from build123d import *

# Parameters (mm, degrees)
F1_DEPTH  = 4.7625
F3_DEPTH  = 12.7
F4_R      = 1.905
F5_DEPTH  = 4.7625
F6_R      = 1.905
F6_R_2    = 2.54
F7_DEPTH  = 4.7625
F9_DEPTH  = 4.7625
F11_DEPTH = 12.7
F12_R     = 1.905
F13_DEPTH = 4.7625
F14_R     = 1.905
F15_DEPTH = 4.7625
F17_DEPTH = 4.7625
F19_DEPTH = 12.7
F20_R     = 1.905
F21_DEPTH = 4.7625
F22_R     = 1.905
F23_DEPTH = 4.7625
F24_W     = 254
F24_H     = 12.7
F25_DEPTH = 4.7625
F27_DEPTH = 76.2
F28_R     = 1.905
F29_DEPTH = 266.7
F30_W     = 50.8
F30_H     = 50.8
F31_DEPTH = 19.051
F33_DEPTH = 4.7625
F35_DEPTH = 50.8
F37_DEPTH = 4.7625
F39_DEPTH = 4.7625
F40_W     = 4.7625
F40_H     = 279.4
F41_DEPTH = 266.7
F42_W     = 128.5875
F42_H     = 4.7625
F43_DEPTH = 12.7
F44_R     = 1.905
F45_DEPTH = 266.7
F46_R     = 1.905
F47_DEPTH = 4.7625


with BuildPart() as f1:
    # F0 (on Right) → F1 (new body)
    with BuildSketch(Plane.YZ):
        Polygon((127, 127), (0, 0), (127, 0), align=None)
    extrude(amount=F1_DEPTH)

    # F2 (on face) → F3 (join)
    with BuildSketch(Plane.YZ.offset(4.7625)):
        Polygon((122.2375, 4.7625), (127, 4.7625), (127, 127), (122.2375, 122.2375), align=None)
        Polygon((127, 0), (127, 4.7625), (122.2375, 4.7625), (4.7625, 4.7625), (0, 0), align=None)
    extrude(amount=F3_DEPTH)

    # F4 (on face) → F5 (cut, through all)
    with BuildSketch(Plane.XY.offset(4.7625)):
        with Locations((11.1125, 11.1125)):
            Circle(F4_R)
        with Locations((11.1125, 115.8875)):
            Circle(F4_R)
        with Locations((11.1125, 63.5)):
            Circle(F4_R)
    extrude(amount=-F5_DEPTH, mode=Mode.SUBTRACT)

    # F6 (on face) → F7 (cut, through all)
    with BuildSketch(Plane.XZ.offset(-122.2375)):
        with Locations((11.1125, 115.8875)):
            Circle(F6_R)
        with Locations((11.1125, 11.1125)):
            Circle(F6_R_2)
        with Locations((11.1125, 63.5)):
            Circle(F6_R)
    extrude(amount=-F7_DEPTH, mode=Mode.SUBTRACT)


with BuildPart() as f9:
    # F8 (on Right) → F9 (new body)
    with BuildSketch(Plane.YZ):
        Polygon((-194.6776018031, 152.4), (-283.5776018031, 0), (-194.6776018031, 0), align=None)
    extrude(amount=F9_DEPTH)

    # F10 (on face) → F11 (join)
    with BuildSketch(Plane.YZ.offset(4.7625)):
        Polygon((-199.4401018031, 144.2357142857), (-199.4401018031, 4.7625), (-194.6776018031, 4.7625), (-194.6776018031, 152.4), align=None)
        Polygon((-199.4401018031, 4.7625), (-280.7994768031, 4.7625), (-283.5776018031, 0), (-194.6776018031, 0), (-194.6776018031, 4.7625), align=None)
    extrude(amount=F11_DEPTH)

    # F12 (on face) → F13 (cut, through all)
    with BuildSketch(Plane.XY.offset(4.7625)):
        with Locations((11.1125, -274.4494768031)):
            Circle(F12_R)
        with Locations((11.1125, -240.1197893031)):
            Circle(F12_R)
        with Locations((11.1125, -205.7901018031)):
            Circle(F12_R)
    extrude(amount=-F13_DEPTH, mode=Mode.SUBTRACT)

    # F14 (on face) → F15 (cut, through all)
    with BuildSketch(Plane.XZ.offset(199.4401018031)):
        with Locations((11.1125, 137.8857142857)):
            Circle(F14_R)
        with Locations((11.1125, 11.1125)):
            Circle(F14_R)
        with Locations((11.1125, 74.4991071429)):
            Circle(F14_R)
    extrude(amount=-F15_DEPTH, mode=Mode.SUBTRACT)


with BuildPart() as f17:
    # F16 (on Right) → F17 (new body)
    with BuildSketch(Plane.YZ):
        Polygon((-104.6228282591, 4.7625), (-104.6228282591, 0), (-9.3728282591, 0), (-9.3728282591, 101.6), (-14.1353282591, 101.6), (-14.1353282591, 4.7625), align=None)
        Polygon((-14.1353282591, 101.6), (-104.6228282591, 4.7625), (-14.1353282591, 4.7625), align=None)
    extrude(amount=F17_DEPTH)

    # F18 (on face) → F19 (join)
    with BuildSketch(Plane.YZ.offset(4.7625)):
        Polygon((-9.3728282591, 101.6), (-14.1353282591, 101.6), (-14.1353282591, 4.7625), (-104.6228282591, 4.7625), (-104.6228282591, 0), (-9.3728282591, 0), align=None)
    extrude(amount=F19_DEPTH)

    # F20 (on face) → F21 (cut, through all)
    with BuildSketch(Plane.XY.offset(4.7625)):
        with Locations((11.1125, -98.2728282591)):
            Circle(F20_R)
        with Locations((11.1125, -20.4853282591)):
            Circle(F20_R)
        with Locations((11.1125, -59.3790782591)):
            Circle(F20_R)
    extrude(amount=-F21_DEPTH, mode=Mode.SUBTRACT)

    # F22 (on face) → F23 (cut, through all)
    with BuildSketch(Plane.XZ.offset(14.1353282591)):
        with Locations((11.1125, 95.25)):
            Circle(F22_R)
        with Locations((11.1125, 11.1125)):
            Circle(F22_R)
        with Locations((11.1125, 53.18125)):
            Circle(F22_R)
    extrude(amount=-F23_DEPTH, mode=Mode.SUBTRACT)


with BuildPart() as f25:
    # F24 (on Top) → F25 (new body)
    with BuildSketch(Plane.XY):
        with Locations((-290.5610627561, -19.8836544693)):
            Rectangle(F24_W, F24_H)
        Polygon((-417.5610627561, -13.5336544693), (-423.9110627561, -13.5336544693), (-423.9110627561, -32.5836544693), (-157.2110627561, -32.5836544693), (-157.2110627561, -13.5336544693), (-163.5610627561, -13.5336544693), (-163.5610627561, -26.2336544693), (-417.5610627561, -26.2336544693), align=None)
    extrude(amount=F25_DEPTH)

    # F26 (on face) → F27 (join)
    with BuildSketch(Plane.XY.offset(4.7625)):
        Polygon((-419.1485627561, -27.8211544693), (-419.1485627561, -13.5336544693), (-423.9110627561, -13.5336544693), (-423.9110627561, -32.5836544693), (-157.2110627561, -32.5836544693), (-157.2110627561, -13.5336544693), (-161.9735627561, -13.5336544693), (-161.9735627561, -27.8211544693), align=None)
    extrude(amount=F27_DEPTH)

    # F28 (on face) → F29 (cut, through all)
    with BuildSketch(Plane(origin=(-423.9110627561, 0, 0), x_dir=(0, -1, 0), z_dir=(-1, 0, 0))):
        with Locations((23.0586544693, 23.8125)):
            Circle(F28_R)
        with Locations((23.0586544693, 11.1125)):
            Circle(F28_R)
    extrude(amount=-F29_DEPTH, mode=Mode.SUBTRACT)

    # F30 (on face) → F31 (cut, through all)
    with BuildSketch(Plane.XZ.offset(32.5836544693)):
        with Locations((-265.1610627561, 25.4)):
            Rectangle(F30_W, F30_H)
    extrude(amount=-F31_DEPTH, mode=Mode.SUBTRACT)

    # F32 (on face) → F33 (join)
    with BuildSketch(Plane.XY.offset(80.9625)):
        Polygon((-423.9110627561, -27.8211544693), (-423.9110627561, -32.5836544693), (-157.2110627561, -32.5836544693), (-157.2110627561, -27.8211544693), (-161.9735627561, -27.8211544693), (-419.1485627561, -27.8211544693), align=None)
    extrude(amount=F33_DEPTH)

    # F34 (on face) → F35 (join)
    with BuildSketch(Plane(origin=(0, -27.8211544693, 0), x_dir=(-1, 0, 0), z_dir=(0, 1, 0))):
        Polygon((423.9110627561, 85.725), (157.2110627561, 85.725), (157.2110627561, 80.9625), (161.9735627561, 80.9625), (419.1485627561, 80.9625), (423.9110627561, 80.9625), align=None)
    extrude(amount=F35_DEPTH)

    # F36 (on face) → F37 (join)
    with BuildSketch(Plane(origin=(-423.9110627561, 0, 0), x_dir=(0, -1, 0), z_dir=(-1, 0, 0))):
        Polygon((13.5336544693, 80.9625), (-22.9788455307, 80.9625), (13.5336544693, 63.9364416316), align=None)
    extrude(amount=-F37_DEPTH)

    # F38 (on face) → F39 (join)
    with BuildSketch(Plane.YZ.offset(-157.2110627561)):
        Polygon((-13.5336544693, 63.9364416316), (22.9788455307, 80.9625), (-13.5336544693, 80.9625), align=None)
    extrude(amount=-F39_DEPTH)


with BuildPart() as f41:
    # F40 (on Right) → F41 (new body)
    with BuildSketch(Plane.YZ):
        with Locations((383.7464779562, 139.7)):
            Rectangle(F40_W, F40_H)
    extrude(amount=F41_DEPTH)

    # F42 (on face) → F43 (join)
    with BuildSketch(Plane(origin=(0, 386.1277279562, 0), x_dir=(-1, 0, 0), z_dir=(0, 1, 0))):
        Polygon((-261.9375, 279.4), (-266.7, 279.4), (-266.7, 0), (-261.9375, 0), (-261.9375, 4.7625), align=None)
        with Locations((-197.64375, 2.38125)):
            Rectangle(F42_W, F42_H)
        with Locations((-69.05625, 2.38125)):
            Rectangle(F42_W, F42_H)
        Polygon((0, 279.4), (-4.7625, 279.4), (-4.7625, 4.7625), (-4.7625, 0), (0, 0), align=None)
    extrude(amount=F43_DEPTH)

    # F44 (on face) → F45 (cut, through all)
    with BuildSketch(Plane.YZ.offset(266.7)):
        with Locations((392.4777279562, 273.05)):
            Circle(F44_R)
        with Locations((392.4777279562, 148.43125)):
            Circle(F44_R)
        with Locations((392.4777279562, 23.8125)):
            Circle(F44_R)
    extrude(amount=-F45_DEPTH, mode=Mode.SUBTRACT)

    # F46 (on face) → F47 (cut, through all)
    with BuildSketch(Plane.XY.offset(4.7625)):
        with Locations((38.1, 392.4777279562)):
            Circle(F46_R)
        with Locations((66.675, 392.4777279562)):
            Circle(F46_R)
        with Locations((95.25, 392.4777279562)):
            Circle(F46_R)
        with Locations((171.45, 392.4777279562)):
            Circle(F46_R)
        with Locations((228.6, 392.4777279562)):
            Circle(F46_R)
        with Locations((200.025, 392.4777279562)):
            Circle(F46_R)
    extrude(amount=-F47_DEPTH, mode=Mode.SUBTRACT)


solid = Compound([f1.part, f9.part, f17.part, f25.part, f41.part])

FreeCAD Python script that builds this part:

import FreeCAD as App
import Part
import Sketcher
Q = App.Units.Quantity

doc = App.newDocument("Part")
body = doc.addObject("PartDesign::Body", "Body")

# Sketch on YZ plane
sketch1 = body.newObject("Sketcher::SketchObject", "Sketch")
sketch1.AttachmentSupport = (doc.getObject("YZ_Plane"), [""])
sketch1.MapMode = "FlatFace"
sketch1.addGeometry(Part.LineSegment(App.Vector(127, 127, 0), App.Vector(0, 0, 0)), False)
sketch1.addGeometry(Part.LineSegment(App.Vector(0, 0, 0), App.Vector(127, 0, 0)), False)
sketch1.addGeometry(Part.LineSegment(App.Vector(127, 0, 0), App.Vector(127, 127, 0)), False)
sketch1.addConstraint(Sketcher.Constraint("Coincident", 0, 2, 1, 1))
sketch1.addConstraint(Sketcher.Constraint("Coincident", 1, 2, 2, 1))
sketch1.addConstraint(Sketcher.Constraint("Coincident", 2, 2, 0, 1))
sketch1.addConstraint(Sketcher.Constraint("Horizontal", 1))
sketch1.addConstraint(Sketcher.Constraint("Vertical", 2))
sketch1.addConstraint(Sketcher.Constraint("Coincident", 0, 2, -1, 1))
sketch1.addConstraint(Sketcher.Constraint("Equal", 1, 2))
sketch1.addConstraint(Sketcher.Constraint("DistanceX", 1, 1, 1, 2, Q("5 in")))
pad1 = body.newObject("PartDesign::Pad", "Pad")
pad1.Profile = sketch1
pad1.Length = Q("0.1875 in")

# Sketch on YZ plane
sketch2 = body.newObject("Sketcher::SketchObject", "Sketch001")
sketch2.AttachmentSupport = (doc.getObject("YZ_Plane"), [""])
sketch2.MapMode = "FlatFace"
sketch2.AttachmentOffset = App.Placement(App.Vector(0, 0, 0.1875 * 25.4), App.Rotation())
sketch2.addGeometry(Part.LineSegment(App.Vector(127, 127, 0), App.Vector(122, 122, 0)), False)
sketch2.addGeometry(Part.LineSegment(App.Vector(122, 122, 0), App.Vector(122, 5, 0)), False)
sketch2.addGeometry(Part.LineSegment(App.Vector(122, 5, 0), App.Vector(5, 5, 0)), False)
sketch2.addGeometry(Part.LineSegment(App.Vector(5, 5, 0), App.Vector(0, 0, 0)), False)
sketch2.addGeometry(Part.LineSegment(App.Vector(0, 0, 0), App.Vector(127, 0, 0)), False)
sketch2.addGeometry(Part.LineSegment(App.Vector(127, 0, 0), App.Vector(127, 127, 0)), False)
sketch2.addConstraint(Sketcher.Constraint("Coincident", 0, 2, 1, 1))
sketch2.addConstraint(Sketcher.Constraint("Coincident", 1, 2, 2, 1))
sketch2.addConstraint(Sketcher.Constraint("Coincident", 2, 2, 3, 1))
sketch2.addConstraint(Sketcher.Constraint("Coincident", 3, 2, 4, 1))
sketch2.addConstraint(Sketcher.Constraint("Coincident", 4, 2, 5, 1))
sketch2.addConstraint(Sketcher.Constraint("Coincident", 5, 2, 0, 1))
sketch2.addConstraint(Sketcher.Constraint("Vertical", 1))
sketch2.addConstraint(Sketcher.Constraint("Horizontal", 2))
sketch2.addConstraint(Sketcher.Constraint("Horizontal", 4))
sketch2.addConstraint(Sketcher.Constraint("Vertical", 5))
sketch2.addConstraint(Sketcher.Constraint("Coincident", 3, 2, -1, 1))
sketch2.addConstraint(Sketcher.Constraint("Parallel", 0, 3))
sketch2.addConstraint(Sketcher.Constraint("Equal", 2, 1))
sketch2.addConstraint(Sketcher.Constraint("Equal", 4, 5))
sketch2.addConstraint(Sketcher.Constraint("Equal", 0, 3))
sketch2.addConstraint(Sketcher.Constraint("DistanceX", 4, 1, 4, 2, Q("5 in")))
sketch2.addConstraint(Sketcher.Constraint("DistanceX", 2, 2, 2, 1, Q("4.625 in")))
pad2 = body.newObject("PartDesign::Pad", "Pad001")
pad2.Profile = sketch2
pad2.Length = Q("0.5 in")

# Sketch on XY plane
sketch3 = body.newObject("Sketcher::SketchObject", "Sketch002")
sketch3.AttachmentSupport = (doc.getObject("XY_Plane"), [""])
sketch3.MapMode = "FlatFace"
sketch3.AttachmentOffset = App.Placement(App.Vector(0, 0, 0.1875 * 25.4), App.Rotation())
sketch3.addGeometry(Part.Circle(App.Vector(11.1, 11.1, 0), App.Vector(0, 0, 1), 1.9), False)
sketch3.addGeometry(Part.Circle(App.Vector(11.1, 115.9, 0), App.Vector(0, 0, 1), 1.9), False)
sketch3.addGeometry(Part.Circle(App.Vector(11.1, 63.5, 0), App.Vector(0, 0, 1), 1.9), False)
sketch3.addConstraint(Sketcher.Constraint("Equal", 0, 1))
sketch3.addConstraint(Sketcher.Constraint("Equal", 1, 2))
sketch3.addConstraint(Sketcher.Constraint("Vertical", 0, 3, 1, 3))
sketch3.addConstraint(Sketcher.Constraint("Vertical", 1, 3, 2, 3))
sketch3.addConstraint(Sketcher.Constraint("Diameter", 0, Q("0.15 in")))
sketch3.addConstraint(Sketcher.Constraint("DistanceY", -1, 1, 2, 3, Q("2.5 in")))
sketch3.addConstraint(Sketcher.Constraint("DistanceX", -1, 1, 0, 3, Q("0.4375 in")))
sketch3.addConstraint(Sketcher.Constraint("DistanceY", -1, 1, 0, 3, Q("0.4375 in")))
sketch3.addConstraint(Sketcher.Constraint("DistanceY", -1, 1, 1, 3, Q("4.5625 in")))
pocket1 = body.newObject("PartDesign::Pocket", "Pocket")
pocket1.Profile = sketch3
pocket1.Type = "ThroughAll"

# Sketch on XZ plane
sketch4 = body.newObject("Sketcher::SketchObject", "Sketch003")
sketch4.AttachmentSupport = (doc.getObject("XZ_Plane"), [""])
sketch4.MapMode = "FlatFace"
sketch4.AttachmentOffset = App.Placement(App.Vector(0, 0, -4.8125 * 25.4), App.Rotation())
sketch4.addGeometry(Part.Circle(App.Vector(11.1, 115.9, 0), App.Vector(0, 0, 1), 1.9), False)
sketch4.addGeometry(Part.Circle(App.Vector(11.1, 11.1, 0), App.Vector(0, 0, 1), 2.5), False)
sketch4.addGeometry(Part.Circle(App.Vector(11.1, 63.5, 0), App.Vector(0, 0, 1), 1.9), False)
sketch4.addConstraint(Sketcher.Constraint("Equal", 0, 2))
sketch4.addConstraint(Sketcher.Constraint("Vertical", 0, 3, 1, 3))
sketch4.addConstraint(Sketcher.Constraint("Vertical", 1, 3, 2, 3))
sketch4.addConstraint(Sketcher.Constraint("Diameter", 1, Q("0.2 in")))
sketch4.addConstraint(Sketcher.Constraint("Diameter", 0, Q("0.15 in")))
sketch4.addConstraint(Sketcher.Constraint("DistanceY", -1, 1, 2, 3, Q("2.5 in")))
sketch4.addConstraint(Sketcher.Constraint("DistanceX", -1, 1, 0, 3, Q("0.4375 in")))
sketch4.addConstraint(Sketcher.Constraint("DistanceY", -1, 1, 0, 3, Q("4.5625 in")))
sketch4.addConstraint(Sketcher.Constraint("DistanceY", -1, 1, 1, 3, Q("0.4375 in")))
pocket2 = body.newObject("PartDesign::Pocket", "Pocket001")
pocket2.Profile = sketch4
pocket2.Type = "ThroughAll"
body2 = doc.addObject("PartDesign::Body", "Body001")

# Sketch on YZ plane
sketch5 = body2.newObject("Sketcher::SketchObject", "Sketch004")
sketch5.AttachmentSupport = (doc.getObject("YZ_Plane001"), [""])
sketch5.MapMode = "FlatFace"
sketch5.addGeometry(Part.LineSegment(App.Vector(-195, 152, 0), App.Vector(-284, 0, 0)), False)
sketch5.addGeometry(Part.LineSegment(App.Vector(-284, 0, 0), App.Vector(-195, 0, 0)), False)
sketch5.addGeometry(Part.LineSegment(App.Vector(-195, 0, 0), App.Vector(-195, 152, 0)), False)
sketch5.addConstraint(Sketcher.Constraint("Coincident", 0, 2, 1, 1))
sketch5.addConstraint(Sketcher.Constraint("Coincident", 1, 2, 2, 1))
sketch5.addConstraint(Sketcher.Constraint("Coincident", 2, 2, 0, 1))
sketch5.addConstraint(Sketcher.Constraint("Horizontal", 1))
sketch5.addConstraint(Sketcher.Constraint("Vertical", 2))
sketch5.addConstraint(Sketcher.Constraint("PointOnObject", 0, 2, -1))
sketch5.addConstraint(Sketcher.Constraint("DistanceY", 2, 1, 2, 2, Q("6 in")))
sketch5.addConstraint(Sketcher.Constraint("DistanceX", 1, 1, 1, 2, Q("3.5 in")))
sketch5.addConstraint(Sketcher.Constraint("DistanceX", 0, 2, -1, 1, Q("283.577602 mm")))
pad3 = body2.newObject("PartDesign::Pad", "Pad002")
pad3.Profile = sketch5
pad3.Length = Q("0.1875 in")

# Sketch on YZ plane
sketch6 = body2.newObject("Sketcher::SketchObject", "Sketch005")
sketch6.AttachmentSupport = (doc.getObject("YZ_Plane001"), [""])
sketch6.MapMode = "FlatFace"
sketch6.AttachmentOffset = App.Placement(App.Vector(0, 0, 0.1875 * 25.4), App.Rotation())
sketch6.addGeometry(Part.LineSegment(App.Vector(-199, 144, 0), App.Vector(-199, 5, 0)), False)
sketch6.addGeometry(Part.LineSegment(App.Vector(-199, 5, 0), App.Vector(-281, 5, 0)), False)
sketch6.addGeometry(Part.LineSegment(App.Vector(-281, 5, 0), App.Vector(-284, 0, 0)), False)
sketch6.addGeometry(Part.LineSegment(App.Vector(-284, 0, 0), App.Vector(-195, 0, 0)), False)
sketch6.addGeometry(Part.LineSegment(App.Vector(-195, 0, 0), App.Vector(-195, 152, 0)), False)
sketch6.addGeometry(Part.LineSegment(App.Vector(-195, 152, 0), App.Vector(-199, 144, 0)), False)
sketch6.addConstraint(Sketcher.Constraint("Coincident", 0, 2, 1, 1))
sketch6.addConstraint(Sketcher.Constraint("Coincident", 1, 2, 2, 1))
sketch6.addConstraint(Sketcher.Constraint("Coincident", 2, 2, 3, 1))
sketch6.addConstraint(Sketcher.Constraint("Coincident", 3, 2, 4, 1))
sketch6.addConstraint(Sketcher.Constraint("Coincident", 4, 2, 5, 1))
sketch6.addConstraint(Sketcher.Constraint("Coincident", 5, 2, 0, 1))
sketch6.addConstraint(Sketcher.Constraint("Vertical", 0))
sketch6.addConstraint(Sketcher.Constraint("Horizontal", 1))
sketch6.addConstraint(Sketcher.Constraint("Horizontal", 3))
sketch6.addConstraint(Sketcher.Constraint("Vertical", 4))
sketch6.addConstraint(Sketcher.Constraint("PointOnObject", 2, 2, -1))
sketch6.addConstraint(Sketcher.Constraint("Parallel", 2, 5))
sketch6.addConstraint(Sketcher.Constraint("DistanceY", 4, 1, 4, 2, Q("6 in")))
sketch6.addConstraint(Sketcher.Constraint("DistanceX", 3, 1, 3, 2, Q("3.5 in")))
sketch6.addConstraint(Sketcher.Constraint("DistanceX", 1, 2, 1, 1, Q("3.203125 in")))
sketch6.addConstraint(Sketcher.Constraint("DistanceY", -1, 1, 0, 2, Q("0.1875 in")))
sketch6.addConstraint(Sketcher.Constraint("DistanceX", 2, 2, 1, 2, Q("0.109375 in")))
sketch6.addConstraint(Sketcher.Constraint("DistanceX", 0, 2, -1, 1, Q("199.440102 mm")))
pad4 = body2.newObject("PartDesign::Pad", "Pad003")
pad4.Profile = sketch6
pad4.Length = Q("0.5 in")

# Sketch on XY plane
sketch7 = body2.newObject("Sketcher::SketchObject", "Sketch006")
sketch7.AttachmentSupport = (doc.getObject("XY_Plane001"), [""])
sketch7.MapMode = "FlatFace"
sketch7.AttachmentOffset = App.Placement(App.Vector(0, 0, 0.1875 * 25.4), App.Rotation())
sketch7.addGeometry(Part.Circle(App.Vector(11.1, -274.4, 0), App.Vector(0, 0, 1), 1.9), False)
sketch7.addGeometry(Part.Circle(App.Vector(11.1, -240.1, 0), App.Vector(0, 0, 1), 1.9), False)
sketch7.addGeometry(Part.Circle(App.Vector(11.1, -205.8, 0), App.Vector(0, 0, 1), 1.9), False)
sketch7.addConstraint(Sketcher.Constraint("Equal", 0, 1))
sketch7.addConstraint(Sketcher.Constraint("Equal", 1, 2))
sketch7.addConstraint(Sketcher.Constraint("Vertical", 0, 3, 1, 3))
sketch7.addConstraint(Sketcher.Constraint("Vertical", 1, 3, 2, 3))
sketch7.addConstraint(Sketcher.Constraint("Diameter", 0, Q("0.15 in")))
sketch7.addConstraint(Sketcher.Constraint("DistanceX", -1, 1, 0, 3, Q("0.4375 in")))
sketch7.addConstraint(Sketcher.Constraint("DistanceY", 0, 3, 2, 3, Q("2.703125 in")))
sketch7.addConstraint(Sketcher.Constraint("DistanceY", 2, 3, -1, 1, Q("205.790102 mm")))
sketch7.addConstraint(Sketcher.Constraint("DistanceY", 1, 3, -1, 1, Q("240.119789 mm")))
pocket3 = body2.newObject("PartDesign::Pocket", "Pocket002")
pocket3.Profile = sketch7
pocket3.Type = "ThroughAll"

# Sketch on XZ plane
sketch8 = body2.newObject("Sketcher::SketchObject", "Sketch007")
sketch8.AttachmentSupport = (doc.getObject("XZ_Plane001"), [""])
sketch8.MapMode = "FlatFace"
sketch8.AttachmentOffset = App.Placement(App.Vector(0, 0, 199.440102), App.Rotation())
sketch8.addGeometry(Part.Circle(App.Vector(11.1, 137.9, 0), App.Vector(0, 0, 1), 1.9), False)
sketch8.addGeometry(Part.Circle(App.Vector(11.1, 11.1, 0), App.Vector(0, 0, 1), 1.9), False)
sketch8.addGeometry(Part.Circle(App.Vector(11.1, 74.5, 0), App.Vector(0, 0, 1), 1.9), False)
sketch8.addConstraint(Sketcher.Constraint("Equal", 0, 1))
sketch8.addConstraint(Sketcher.Constraint("Equal", 1, 2))
sketch8.addConstraint(Sketcher.Constraint("Vertical", 0, 3, 1, 3))
sketch8.addConstraint(Sketcher.Constraint("Vertical", 1, 3, 2, 3))
sketch8.addConstraint(Sketcher.Constraint("Diameter", 0, Q("0.15 in")))
sketch8.addConstraint(Sketcher.Constraint("DistanceX", -1, 1, 0, 3, Q("0.4375 in")))
sketch8.addConstraint(Sketcher.Constraint("DistanceY", -1, 1, 1, 3, Q("0.4375 in")))
sketch8.addConstraint(Sketcher.Constraint("DistanceY", -1, 1, 0, 3, Q("137.885714 mm")))
sketch8.addConstraint(Sketcher.Constraint("DistanceY", -1, 1, 2, 3, Q("74.499107 mm")))
pocket4 = body2.newObject("PartDesign::Pocket", "Pocket003")
pocket4.Profile = sketch8
pocket4.Type = "ThroughAll"
body3 = doc.addObject("PartDesign::Body", "Body002")

# Sketch on YZ plane
sketch9 = body3.newObject("Sketcher::SketchObject", "Sketch008")
sketch9.AttachmentSupport = (doc.getObject("YZ_Plane002"), [""])
sketch9.MapMode = "FlatFace"
sketch9.addGeometry(Part.LineSegment(App.Vector(-104.6, 4.8, 0), App.Vector(-104.6, 0, 0)), False)
sketch9.addGeometry(Part.LineSegment(App.Vector(-104.6, 0, 0), App.Vector(-9.4, 0, 0)), False)
sketch9.addGeometry(Part.LineSegment(App.Vector(-9.4, 0, 0), App.Vector(-9.4, 101.6, 0)), False)
sketch9.addGeometry(Part.LineSegment(App.Vector(-9.4, 101.6, 0), App.Vector(-14.1, 101.6, 0)), False)
sketch9.addGeometry(Part.LineSegment(App.Vector(-14.1, 101.6, 0), App.Vector(-104.6, 4.8, 0)), False)
sketch9.addConstraint(Sketcher.Constraint("Coincident", 0, 2, 1, 1))
sketch9.addConstraint(Sketcher.Constraint("Coincident", 1, 2, 2, 1))
sketch9.addConstraint(Sketcher.Constraint("Coincident", 2, 2, 3, 1))
sketch9.addConstraint(Sketcher.Constraint("Coincident", 3, 2, 4, 1))
sketch9.addConstraint(Sketcher.Constraint("Coincident", 4, 2, 0, 1))
sketch9.addConstraint(Sketcher.Constraint("Vertical", 0))
sketch9.addConstraint(Sketcher.Constraint("Horizontal", 1))
sketch9.addConstraint(Sketcher.Constraint("Vertical", 2))
sketch9.addConstraint(Sketcher.Constraint("Horizontal", 3))
sketch9.addConstraint(Sketcher.Constraint("PointOnObject", 0, 2, -1))
sketch9.addConstraint(Sketcher.Constraint("Equal", 3, 0))
sketch9.addConstraint(Sketcher.Constraint("DistanceY", 2, 1, 2, 2, Q("4 in")))
sketch9.addConstraint(Sketcher.Constraint("DistanceX", 1, 1, 1, 2, Q("3.75 in")))
sketch9.addConstraint(Sketcher.Constraint("DistanceX", 3, 2, 3, 1, Q("0.1875 in")))
sketch9.addConstraint(Sketcher.Constraint("DistanceX", 0, 2, -1, 1, Q("104.622828 mm")))
pad5 = body3.newObject("PartDesign::Pad", "Pad004")
pad5.Profile = sketch9
pad5.Length = Q("0.1875 in")

# Sketch on YZ plane
sketch10 = body3.newObject("Sketcher::SketchObject", "Sketch009")
sketch10.AttachmentSupport = (doc.getObject("YZ_Plane002"), [""])
sketch10.MapMode = "FlatFace"
sketch10.AttachmentOffset = App.Placement(App.Vector(0, 0, 0.1875 * 25.4), App.Rotation())
sketch10.addGeometry(Part.LineSegment(App.Vector(-9.4, 101.6, 0), App.Vector(-14.1, 101.6, 0)), False)
sketch10.addGeometry(Part.LineSegment(App.Vector(-14.1, 101.6, 0), App.Vector(-14.1, 4.8, 0)), False)
sketch10.addGeometry(Part.LineSegment(App.Vector(-14.1, 4.8, 0), App.Vector(-104.6, 4.8, 0)), False)
sketch10.addGeometry(Part.LineSegment(App.Vector(-104.6, 4.8, 0), App.Vector(-104.6, 0, 0)), False)
sketch10.addGeometry(Part.LineSegment(App.Vector(-104.6, 0, 0), App.Vector(-9.4, 0, 0)), False)
sketch10.addGeometry(Part.LineSegment(App.Vector(-9.4, 0, 0), App.Vector(-9.4, 101.6, 0)), False)
sketch10.addConstraint(Sketcher.Constraint("Coincident", 0, 2, 1, 1))
sketch10.addConstraint(Sketcher.Constraint("Coincident", 1, 2, 2, 1))
sketch10.addConstraint(Sketcher.Constraint("Coincident", 2, 2, 3, 1))
sketch10.addConstraint(Sketcher.Constraint("Coincident", 3, 2, 4, 1))
sketch10.addConstraint(Sketcher.Constraint("Coincident", 4, 2, 5, 1))
sketch10.addConstraint(Sketcher.Constraint("Coincident", 5, 2, 0, 1))
sketch10.addConstraint(Sketcher.Constraint("Horizontal", 0))
sketch10.addConstraint(Sketcher.Constraint("Vertical", 1))
sketch10.addConstraint(Sketcher.Constraint("Horizontal", 2))
sketch10.addConstraint(Sketcher.Constraint("Vertical", 3))
sketch10.addConstraint(Sketcher.Constraint("Horizontal", 4))
sketch10.addConstraint(Sketcher.Constraint("Vertical", 5))
sketch10.addConstraint(Sketcher.Constraint("PointOnObject", 3, 2, -1))
sketch10.addConstraint(Sketcher.Constraint("Equal", 0, 3))
sketch10.addConstraint(Sketcher.Constraint("DistanceY", 5, 1, 5, 2, Q("4 in")))
sketch10.addConstraint(Sketcher.Constraint("DistanceX", 4, 1, 4, 2, Q("3.75 in")))
sketch10.addConstraint(Sketcher.Constraint("DistanceX", 0, 2, 0, 1, Q("0.1875 in")))
sketch10.addConstraint(Sketcher.Constraint("DistanceX", 0, 2, -1, 1, Q("14.135328 mm")))
pad6 = body3.newObject("PartDesign::Pad", "Pad005")
pad6.Profile = sketch10
pad6.Length = Q("0.5 in")

# Sketch on XY plane
sketch11 = body3.newObject("Sketcher::SketchObject", "Sketch010")
sketch11.AttachmentSupport = (doc.getObject("XY_Plane002"), [""])
sketch11.MapMode = "FlatFace"
sketch11.AttachmentOffset = App.Placement(App.Vector(0, 0, 0.1875 * 25.4), App.Rotation())
sketch11.addGeometry(Part.Circle(App.Vector(11.1, -98.3, 0), App.Vector(0, 0, 1), 1.9), False)
sketch11.addGeometry(Part.Circle(App.Vector(11.1, -20.5, 0), App.Vector(0, 0, 1), 1.9), False)
sketch11.addGeometry(Part.Circle(App.Vector(11.1, -59.4, 0), App.Vector(0, 0, 1), 1.9), False)
sketch11.addConstraint(Sketcher.Constraint("Equal", 0, 1))
sketch11.addConstraint(Sketcher.Constraint("Equal", 1, 2))
sketch11.addConstraint(Sketcher.Constraint("Vertical", 0, 3, 1, 3))
sketch11.addConstraint(Sketcher.Constraint("Vertical", 1, 3, 2, 3))
sketch11.addConstraint(Sketcher.Constraint("Diameter", 0, Q("0.15 in")))
sketch11.addConstraint(Sketcher.Constraint("DistanceX", -1, 1, 0, 3, Q("0.4375 in")))
sketch11.addConstraint(Sketcher.Constraint("DistanceY", 0, 3, 1, 3, Q("3.0625 in")))
sketch11.addConstraint(Sketcher.Constraint("DistanceY", 0, 3, 2, 3, Q("1.53125 in")))
sketch11.addConstraint(Sketcher.Constraint("DistanceY", 0, 3, -1, 1, Q("98.272828 mm")))
pocket5 = body3.newObject("PartDesign::Pocket", "Pocket004")
pocket5.Profile = sketch11
pocket5.Type = "ThroughAll"

# Sketch on XZ plane
sketch12 = body3.newObject("Sketcher::SketchObject", "Sketch011")
sketch12.AttachmentSupport = (doc.getObject("XZ_Plane002"), [""])
sketch12.MapMode = "FlatFace"
sketch12.AttachmentOffset = App.Placement(App.Vector(0, 0, 14.135328), App.Rotation())
sketch12.addGeometry(Part.Circle(App.Vector(11.1, 95.2, 0), App.Vector(0, 0, 1), 1.9), False)
sketch12.addGeometry(Part.Circle(App.Vector(11.1, 11.1, 0), App.Vector(0, 0, 1), 1.9), False)
sketch12.addGeometry(Part.Circle(App.Vector(11.1, 53.2, 0), App.Vector(0, 0, 1), 1.9), False)
sketch12.addConstraint(Sketcher.Constraint("Equal", 0, 1))
sketch12.addConstraint(Sketcher.Constraint("Equal", 1, 2))
sketch12.addConstraint(Sketcher.Constraint("Vertical", 0, 3, 1, 3))
sketch12.addConstraint(Sketcher.Constraint("Vertical", 1, 3, 2, 3))
sketch12.addConstraint(Sketcher.Constraint("Diameter", 0, Q("0.15 in")))
sketch12.addConstraint(Sketcher.Constraint("DistanceY", -1, 1, 0, 3, Q("3.75 in")))
sketch12.addConstraint(Sketcher.Constraint("DistanceX", -1, 1, 0, 3, Q("0.4375 in")))
sketch12.addConstraint(Sketcher.Constraint("DistanceY", -1, 1, 1, 3, Q("0.4375 in")))
sketch12.addConstraint(Sketcher.Constraint("DistanceY", -1, 1, 2, 3, Q("2.09375 in")))
pocket6 = body3.newObject("PartDesign::Pocket", "Pocket005")
pocket6.Profile = sketch12
pocket6.Type = "ThroughAll"
body4 = doc.addObject("PartDesign::Body", "Body003")

# Sketch on XY plane
sketch13 = body4.newObject("Sketcher::SketchObject", "Sketch012")
sketch13.AttachmentSupport = (doc.getObject("XY_Plane003"), [""])
sketch13.MapMode = "FlatFace"
sketch13.addGeometry(Part.LineSegment(App.Vector(-424, -14, 0), App.Vector(-424, -33, 0)), False)
sketch13.addGeometry(Part.LineSegment(App.Vector(-424, -33, 0), App.Vector(-157, -33, 0)), False)
sketch13.addGeometry(Part.LineSegment(App.Vector(-157, -33, 0), App.Vector(-157, -14, 0)), False)
sketch13.addGeometry(Part.LineSegment(App.Vector(-157, -14, 0), App.Vector(-424, -14, 0)), False)
sketch13.addConstraint(Sketcher.Constraint("Coincident", 0, 2, 1, 1))
sketch13.addConstraint(Sketcher.Constraint("Coincident", 1, 2, 2, 1))
sketch13.addConstraint(Sketcher.Constraint("Coincident", 2, 2, 3, 1))
sketch13.addConstraint(Sketcher.Constraint("Coincident", 3, 2, 0, 1))
sketch13.addConstraint(Sketcher.Constraint("Vertical", 0))
sketch13.addConstraint(Sketcher.Constraint("Horizontal", 1))
sketch13.addConstraint(Sketcher.Constraint("Vertical", 2))
sketch13.addConstraint(Sketcher.Constraint("Horizontal", 3))
sketch13.addConstraint(Sketcher.Constraint("DistanceX", 1, 1, 1, 2, Q("10.5 in")))
sketch13.addConstraint(Sketcher.Constraint("DistanceY", 0, 2, 0, 1, Q("0.75 in")))
sketch13.addConstraint(Sketcher.Constraint("DistanceX", 0, 2, -1, 1, Q("423.911063 mm")))
sketch13.addConstraint(Sketcher.Constraint("DistanceY", 0, 2, -1, 1, Q("32.583654 mm")))
pad7 = body4.newObject("PartDesign::Pad", "Pad006")
pad7.Profile = sketch13
pad7.Length = Q("0.1875 in")

# Sketch on XY plane
sketch14 = body4.newObject("Sketcher::SketchObject", "Sketch013")
sketch14.AttachmentSupport = (doc.getObject("XY_Plane003"), [""])
sketch14.MapMode = "FlatFace"
sketch14.AttachmentOffset = App.Placement(App.Vector(0, 0, 0.1875 * 25.4), App.Rotation())
sketch14.addGeometry(Part.LineSegment(App.Vector(-419.1, -27.8, 0), App.Vector(-419.1, -13.5, 0)), False)
sketch14.addGeometry(Part.LineSegment(App.Vector(-419.1, -13.5, 0), App.Vector(-423.9, -13.5, 0)), False)
sketch14.addGeometry(Part.LineSegment(App.Vector(-423.9, -13.5, 0), App.Vector(-423.9, -32.6, 0)), False)
sketch14.addGeometry(Part.LineSegment(App.Vector(-423.9, -32.6, 0), App.Vector(-157.2, -32.6, 0)), False)
sketch14.addGeometry(Part.LineSegment(App.Vector(-157.2, -32.6, 0), App.Vector(-157.2, -13.5, 0)), False)
sketch14.addGeometry(Part.LineSegment(App.Vector(-157.2, -13.5, 0), App.Vector(-162, -13.5, 0)), False)
sketch14.addGeometry(Part.LineSegment(App.Vector(-162, -13.5, 0), App.Vector(-162, -27.8, 0)), False)
sketch14.addGeometry(Part.LineSegment(App.Vector(-162, -27.8, 0), App.Vector(-419.1, -27.8, 0)), False)
sketch14.addConstraint(Sketcher.Constraint("Coincident", 0, 2, 1, 1))
sketch14.addConstraint(Sketcher.Constraint("Coincident", 1, 2, 2, 1))
sketch14.addConstraint(Sketcher.Constraint("Coincident", 2, 2, 3, 1))
sketch14.addConstraint(Sketcher.Constraint("Coincident", 3, 2, 4, 1))
sketch14.addConstraint(Sketcher.Constraint("Coincident", 4, 2, 5, 1))
sketch14.addConstraint(Sketcher.Constraint("Coincident", 5, 2, 6, 1))
sketch14.addConstraint(Sketcher.Constraint("Coincident", 6, 2, 7, 1))
sketch14.addConstraint(Sketcher.Constraint("Coincident", 7, 2, 0, 1))
sketch14.addConstraint(Sketcher.Constraint("Vertical", 0))
sketch14.addConstraint(Sketcher.Constraint("Horizontal", 1))
sketch14.addConstraint(Sketcher.Constraint("Vertical", 2))
sketch14.addConstraint(Sketcher.Constraint("Horizontal", 3))
sketch14.addConstraint(Sketcher.Constraint("Vertical", 4))
sketch14.addConstraint(Sketcher.Constraint("Horizontal", 5))
sketch14.addConstraint(Sketcher.Constraint("Vertical", 6))
sketch14.addConstraint(Sketcher.Constraint("Horizontal", 7))
sketch14.addConstraint(Sketcher.Constraint("Horizontal", 1, 2, 4, 2))
sketch14.addConstraint(Sketcher.Constraint("Equal", 1, 5))
sketch14.addConstraint(Sketcher.Constraint("DistanceX", 3, 1, 3, 2, Q("10.5 in")))
sketch14.addConstraint(Sketcher.Constraint("DistanceY", 2, 2, 2, 1, Q("0.75 in")))
sketch14.addConstraint(Sketcher.Constraint("DistanceX", 1, 2, 1, 1, Q("0.1875 in")))
sketch14.addConstraint(Sketcher.Constraint("DistanceY", 0, 1, 0, 2, Q("0.5625 in")))
sketch14.addConstraint(Sketcher.Constraint("DistanceX", 0, 2, -1, 1, Q("419.148563 mm")))
sketch14.addConstraint(Sketcher.Constraint("DistanceY", 0, 2, -1, 1, Q("13.533654 mm")))
pad8 = body4.newObject("PartDesign::Pad", "Pad007")
pad8.Profile = sketch14
pad8.Length = Q("3 in")

# Sketch on YZ plane
sketch15 = body4.newObject("Sketcher::SketchObject", "Sketch014")
sketch15.AttachmentSupport = (doc.getObject("YZ_Plane003"), [""])
sketch15.MapMode = "FlatFace"
sketch15.AttachmentOffset = App.Placement(App.Vector(0, 0, -423.911063), App.Rotation())
sketch15.addGeometry(Part.Circle(App.Vector(-23.1, 23.8, 0), App.Vector(0, 0, 1), 1.9), False)
sketch15.addGeometry(Part.Circle(App.Vector(-23.1, 11.1, 0), App.Vector(0, 0, 1), 1.9), False)
sketch15.addConstraint(Sketcher.Constraint("Equal", 0, 1))
sketch15.addConstraint(Sketcher.Constraint("Vertical", 0, 3, 1, 3))
sketch15.addConstraint(Sketcher.Constraint("Diameter", 0, Q("0.15 in")))
sketch15.addConstraint(Sketcher.Constraint("DistanceY", 1, 3, 0, 3, Q("0.5 in")))
sketch15.addConstraint(Sketcher.Constraint("DistanceY", -1, 1, 0, 3, Q("0.9375 in")))
sketch15.addConstraint(Sketcher.Constraint("DistanceX", 0, 3, -1, 1, Q("23.058654 mm")))
pocket7 = body4.newObject("PartDesign::Pocket", "Pocket006")
pocket7.Profile = sketch15
pocket7.Type = "ThroughAll"
pocket7.Reversed = True

# Sketch on XZ plane
sketch16 = body4.newObject("Sketcher::SketchObject", "Sketch015")
sketch16.AttachmentSupport = (doc.getObject("XZ_Plane003"), [""])
sketch16.MapMode = "FlatFace"
sketch16.AttachmentOffset = App.Placement(App.Vector(0, 0, 32.583654), App.Rotation())
sketch16.addGeometry(Part.LineSegment(App.Vector(-291, 51, 0), App.Vector(-291, 0, 0)), False)
sketch16.addGeometry(Part.LineSegment(App.Vector(-291, 0, 0), App.Vector(-240, 0, 0)), False)
sketch16.addGeometry(Part.LineSegment(App.Vector(-240, 0, 0), App.Vector(-240, 51, 0)), False)
sketch16.addGeometry(Part.LineSegment(App.Vector(-240, 51, 0), App.Vector(-291, 51, 0)), False)
sketch16.addConstraint(Sketcher.Constraint("Coincident", 0, 2, 1, 1))
sketch16.addConstraint(Sketcher.Constraint("Coincident", 1, 2, 2, 1))
sketch16.addConstraint(Sketcher.Constraint("Coincident", 2, 2, 3, 1))
sketch16.addConstraint(Sketcher.Constraint("Coincident", 3, 2, 0, 1))
sketch16.addConstraint(Sketcher.Constraint("Vertical", 0))
sketch16.addConstraint(Sketcher.Constraint("Horizontal", 1))
sketch16.addConstraint(Sketcher.Constraint("Vertical", 2))
sketch16.addConstraint(Sketcher.Constraint("Horizontal", 3))
sketch16.addConstraint(Sketcher.Constraint("PointOnObject", 0, 2, -1))
sketch16.addConstraint(Sketcher.Constraint("Equal", 3, 0))
sketch16.addConstraint(Sketcher.Constraint("DistanceX", 1, 1, 1, 2, Q("2 in")))
sketch16.addConstraint(Sketcher.Constraint("DistanceX", 0, 2, -1, 1, Q("290.561063 mm")))
pocket8 = body4.newObject("PartDesign::Pocket", "Pocket007")
pocket8.Profile = sketch16
pocket8.Type = "ThroughAll"

# Sketch on XY plane
sketch17 = body4.newObject("Sketcher::SketchObject", "Sketch016")
sketch17.AttachmentSupport = (doc.getObject("XY_Plane003"), [""])
sketch17.MapMode = "FlatFace"
sketch17.AttachmentOffset = App.Placement(App.Vector(0, 0, 3.1875 * 25.4), App.Rotation())
sketch17.addGeometry(Part.LineSegment(App.Vector(-423.9, -27.8, 0), App.Vector(-423.9, -32.6, 0)), False)
sketch17.addGeometry(Part.LineSegment(App.Vector(-423.9, -32.6, 0), App.Vector(-157.2, -32.6, 0)), False)
sketch17.addGeometry(Part.LineSegment(App.Vector(-157.2, -32.6, 0), App.Vector(-157.2, -27.8, 0)), False)
sketch17.addGeometry(Part.LineSegment(App.Vector(-157.2, -27.8, 0), App.Vector(-423.9, -27.8, 0)), False)
sketch17.addConstraint(Sketcher.Constraint("Coincident", 0, 2, 1, 1))
sketch17.addConstraint(Sketcher.Constraint("Coincident", 1, 2, 2, 1))
sketch17.addConstraint(Sketcher.Constraint("Coincident", 2, 2, 3, 1))
sketch17.addConstraint(Sketcher.Constraint("Coincident", 3, 2, 0, 1))
sketch17.addConstraint(Sketcher.Constraint("Vertical", 0))
sketch17.addConstraint(Sketcher.Constraint("Horizontal", 1))
sketch17.addConstraint(Sketcher.Constraint("Vertical", 2))
sketch17.addConstraint(Sketcher.Constraint("Horizontal", 3))
sketch17.addConstraint(Sketcher.Constraint("DistanceX", 1, 1, 1, 2, Q("10.5 in")))
sketch17.addConstraint(Sketcher.Constraint("DistanceY", 0, 2, 0, 1, Q("0.1875 in")))
sketch17.addConstraint(Sketcher.Constraint("DistanceX", 0, 2, -1, 1, Q("423.911063 mm")))
sketch17.addConstraint(Sketcher.Constraint("DistanceY", 0, 2, -1, 1, Q("32.583654 mm")))
pad9 = body4.newObject("PartDesign::Pad", "Pad008")
pad9.Profile = sketch17
pad9.Length = Q("0.1875 in")

# Sketch on XZ plane
sketch18 = body4.newObject("Sketcher::SketchObject", "Sketch017")
sketch18.AttachmentSupport = (doc.getObject("XZ_Plane003"), [""])
sketch18.MapMode = "FlatFace"
sketch18.AttachmentOffset = App.Placement(App.Vector(0, 0, 27.821154), App.Rotation())
sketch18.addGeometry(Part.LineSegment(App.Vector(-423.9, 85.7, 0), App.Vector(-157.2, 85.7, 0)), False)
sketch18.addGeometry(Part.LineSegment(App.Vector(-157.2, 85.7, 0), App.Vector(-157.2, 81, 0)), False)
sketch18.addGeometry(Part.LineSegment(App.Vector(-157.2, 81, 0), App.Vector(-423.9, 81, 0)), False)
sketch18.addGeometry(Part.LineSegment(App.Vector(-423.9, 81, 0), App.Vector(-423.9, 85.7, 0)), False)
sketch18.addConstraint(Sketcher.Constraint("Coincident", 0, 2, 1, 1))
sketch18.addConstraint(Sketcher.Constraint("Coincident", 1, 2, 2, 1))
sketch18.addConstraint(Sketcher.Constraint("Coincident", 2, 2, 3, 1))
sketch18.addConstraint(Sketcher.Constraint("Coincident", 3, 2, 0, 1))
sketch18.addConstraint(Sketcher.Constraint("Horizontal", 0))
sketch18.addConstraint(Sketcher.Constraint("Vertical", 1))
sketch18.addConstraint(Sketcher.Constraint("Horizontal", 2))
sketch18.addConstraint(Sketcher.Constraint("Vertical", 3))
sketch18.addConstraint(Sketcher.Constraint("DistanceX", 0, 1, 0, 2, Q("10.5 in")))
sketch18.addConstraint(Sketcher.Constraint("DistanceY", 1, 2, 1, 1, Q("0.1875 in")))
sketch18.addConstraint(Sketcher.Constraint("DistanceY", -1, 1, 0, 2, Q("3.375 in")))
sketch18.addConstraint(Sketcher.Constraint("DistanceX", 0, 2, -1, 1, Q("157.211063 mm")))
pad10 = body4.newObject("PartDesign::Pad", "Pad009")
pad10.Profile = sketch18
pad10.Length = Q("2 in")
pad10.Reversed = True

# Sketch on YZ plane
sketch19 = body4.newObject("Sketcher::SketchObject", "Sketch018")
sketch19.AttachmentSupport = (doc.getObject("YZ_Plane003"), [""])
sketch19.MapMode = "FlatFace"
sketch19.AttachmentOffset = App.Placement(App.Vector(0, 0, -423.911063), App.Rotation())
sketch19.addGeometry(Part.LineSegment(App.Vector(-14, 81, 0), App.Vector(23, 81, 0)), False)
sketch19.addGeometry(Part.LineSegment(App.Vector(23, 81, 0), App.Vector(-14, 64, 0)), False)
sketch19.addGeometry(Part.LineSegment(App.Vector(-14, 64, 0), App.Vector(-14, 81, 0)), False)
sketch19.addConstraint(Sketcher.Constraint("Coincident", 0, 2, 1, 1))
sketch19.addConstraint(Sketcher.Constraint("Coincident", 1, 2, 2, 1))
sketch19.addConstraint(Sketcher.Constraint("Coincident", 2, 2, 0, 1))
sketch19.addConstraint(Sketcher.Constraint("Horizontal", 0))
sketch19.addConstraint(Sketcher.Constraint("Vertical", 2))
sketch19.addConstraint(Sketcher.Constraint("Angle", 1, Q("-155 deg")))
sketch19.addConstraint(Sketcher.Constraint("DistanceX", 0, 1, 0, 2, Q("1.4375 in")))
sketch19.addConstraint(Sketcher.Constraint("DistanceY", -1, 1, 0, 2, Q("3.1875 in")))
sketch19.addConstraint(Sketcher.Constraint("DistanceX", -1, 1, 0, 2, Q("22.978846 mm")))
pad11 = body4.newObject("PartDesign::Pad", "Pad010")
pad11.Profile = sketch19
pad11.Length = Q("0.1875 in")

# Sketch on YZ plane
sketch20 = body4.newObject("Sketcher::SketchObject", "Sketch019")
sketch20.AttachmentSupport = (doc.getObject("YZ_Plane003"), [""])
sketch20.MapMode = "FlatFace"
sketch20.AttachmentOffset = App.Placement(App.Vector(0, 0, -157.211063), App.Rotation())
sketch20.addGeometry(Part.LineSegment(App.Vector(-14, 64, 0), App.Vector(23, 81, 0)), False)
sketch20.addGeometry(Part.LineSegment(App.Vector(23, 81, 0), App.Vector(-14, 81, 0)), False)
sketch20.addGeometry(Part.LineSegment(App.Vector(-14, 81, 0), App.Vector(-14, 64, 0)), False)
sketch20.addConstraint(Sketcher.Constraint("Coincident", 0, 2, 1, 1))
sketch20.addConstraint(Sketcher.Constraint("Coincident", 1, 2, 2, 1))
sketch20.addConstraint(Sketcher.Constraint("Coincident", 2, 2, 0, 1))
sketch20.addConstraint(Sketcher.Constraint("Horizontal", 1))
sketch20.addConstraint(Sketcher.Constraint("Vertical", 2))
sketch20.addConstraint(Sketcher.Constraint("Angle", 0, Q("25 deg")))
sketch20.addConstraint(Sketcher.Constraint("DistanceX", 1, 2, 1, 1, Q("1.4375 in")))
sketch20.addConstraint(Sketcher.Constraint("DistanceY", -1, 1, 0, 2, Q("3.1875 in")))
sketch20.addConstraint(Sketcher.Constraint("DistanceX", -1, 1, 0, 2, Q("22.978846 mm")))
pad12 = body4.newObject("PartDesign::Pad", "Pad011")
pad12.Profile = sketch20
pad12.Length = Q("0.1875 in")
pad12.Reversed = True
body5 = doc.addObject("PartDesign::Body", "Body004")

# Sketch on YZ plane
sketch21 = body5.newObject("Sketcher::SketchObject", "Sketch020")
sketch21.AttachmentSupport = (doc.getObject("YZ_Plane004"), [""])
sketch21.MapMode = "FlatFace"
sketch21.addGeometry(Part.LineSegment(App.Vector(381.4, 279.4, 0), App.Vector(381.4, 0, 0)), False)
sketch21.addGeometry(Part.LineSegment(App.Vector(381.4, 0, 0), App.Vector(386.1, 0, 0)), False)
sketch21.addGeometry(Part.LineSegment(App.Vector(386.1, 0, 0), App.Vector(386.1, 279.4, 0)), False)
sketch21.addGeometry(Part.LineSegment(App.Vector(386.1, 279.4, 0), App.Vector(381.4, 279.4, 0)), False)
sketch21.addConstraint(Sketcher.Constraint("Coincident", 0, 2, 1, 1))
sketch21.addConstraint(Sketcher.Constraint("Coincident", 1, 2, 2, 1))
sketch21.addConstraint(Sketcher.Constraint("Coincident", 2, 2, 3, 1))
sketch21.addConstraint(Sketcher.Constraint("Coincident", 3, 2, 0, 1))
sketch21.addConstraint(Sketcher.Constraint("Vertical", 0))
sketch21.addConstraint(Sketcher.Constraint("Horizontal", 1))
sketch21.addConstraint(Sketcher.Constraint("Vertical", 2))
sketch21.addConstraint(Sketcher.Constraint("Horizontal", 3))
sketch21.addConstraint(Sketcher.Constraint("PointOnObject", 0, 2, -1))
sketch21.addConstraint(Sketcher.Constraint("DistanceY", 0, 2, 0, 1, Q("11 in")))
sketch21.addConstraint(Sketcher.Constraint("DistanceX", 1, 1, 1, 2, Q("0.1875 in")))
sketch21.addConstraint(Sketcher.Constraint("DistanceX", -1, 1, 0, 2, Q("381.365228 mm")))
pad13 = body5.newObject("PartDesign::Pad", "Pad012")
pad13.Profile = sketch21
pad13.Length = Q("10.5 in")

# Sketch on XZ plane
sketch22 = body5.newObject("Sketcher::SketchObject", "Sketch021")
sketch22.AttachmentSupport = (doc.getObject("XZ_Plane004"), [""])
sketch22.MapMode = "FlatFace"
sketch22.AttachmentOffset = App.Placement(App.Vector(0, 0, -386.127728), App.Rotation())
sketch22.addGeometry(Part.LineSegment(App.Vector(261.9, 279.4, 0), App.Vector(266.7, 279.4, 0)), False)
sketch22.addGeometry(Part.LineSegment(App.Vector(266.7, 279.4, 0), App.Vector(266.7, 0, 0)), False)
sketch22.addGeometry(Part.LineSegment(App.Vector(266.7, 0, 0), App.Vector(0, 0, 0)), False)
sketch22.addGeometry(Part.LineSegment(App.Vector(0, 0, 0), App.Vector(0, 279.4, 0)), False)
sketch22.addGeometry(Part.LineSegment(App.Vector(0, 279.4, 0), App.Vector(4.8, 279.4, 0)), False)
sketch22.addGeometry(Part.LineSegment(App.Vector(4.8, 279.4, 0), App.Vector(4.8, 4.8, 0)), False)
sketch22.addGeometry(Part.LineSegment(App.Vector(4.8, 4.8, 0), App.Vector(261.9, 4.8, 0)), False)
sketch22.addGeometry(Part.LineSegment(App.Vector(261.9, 4.8, 0), App.Vector(261.9, 279.4, 0)), False)
sketch22.addConstraint(Sketcher.Constraint("Coincident", 0, 2, 1, 1))
sketch22.addConstraint(Sketcher.Constraint("Coincident", 1, 2, 2, 1))
sketch22.addConstraint(Sketcher.Constraint("Coincident", 2, 2, 3, 1))
sketch22.addConstraint(Sketcher.Constraint("Coincident", 3, 2, 4, 1))
sketch22.addConstraint(Sketcher.Constraint("Coincident", 4, 2, 5, 1))
sketch22.addConstraint(Sketcher.Constraint("Coincident", 5, 2, 6, 1))
sketch22.addConstraint(Sketcher.Constraint("Coincident", 6, 2, 7, 1))
sketch22.addConstraint(Sketcher.Constraint("Coincident", 7, 2, 0, 1))
sketch22.addConstraint(Sketcher.Constraint("Horizontal", 0))
sketch22.addConstraint(Sketcher.Constraint("Vertical", 1))
sketch22.addConstraint(Sketcher.Constraint("Horizontal", 2))
sketch22.addConstraint(Sketcher.Constraint("Vertical", 3))
sketch22.addConstraint(Sketcher.Constraint("Horizontal", 4))
sketch22.addConstraint(Sketcher.Constraint("Vertical", 5))
sketch22.addConstraint(Sketcher.Constraint("Horizontal", 6))
sketch22.addConstraint(Sketcher.Constraint("Vertical", 7))
sketch22.addConstraint(Sketcher.Constraint("Coincident", 2, 2, -1, 1))
sketch22.addConstraint(Sketcher.Constraint("Horizontal", 0, 2, 3, 2))
sketch22.addConstraint(Sketcher.Constraint("Equal", 0, 4))
sketch22.addConstraint(Sketcher.Constraint("DistanceY", 1, 2, 1, 1, Q("11 in")))
sketch22.addConstraint(Sketcher.Constraint("DistanceX", 2, 2, 2, 1, Q("10.5 in")))
sketch22.addConstraint(Sketcher.Constraint("DistanceX", 0, 1, 0, 2, Q("0.1875 in")))
sketch22.addConstraint(Sketcher.Constraint("DistanceY", 5, 2, 5, 1, Q("10.8125 in")))
pad14 = body5.newObject("PartDesign::Pad", "Pad013")
pad14.Profile = sketch22
pad14.Length = Q("0.5 in")
pad14.Reversed = True

# Sketch on YZ plane
sketch23 = body5.newObject("Sketcher::SketchObject", "Sketch022")
sketch23.AttachmentSupport = (doc.getObject("YZ_Plane004"), [""])
sketch23.MapMode = "FlatFace"
sketch23.AttachmentOffset = App.Placement(App.Vector(0, 0, 10.5 * 25.4), App.Rotation())
sketch23.addGeometry(Part.Circle(App.Vector(392.5, 273.1, 0), App.Vector(0, 0, 1), 1.9), False)
sketch23.addGeometry(Part.Circle(App.Vector(392.5, 148.4, 0), App.Vector(0, 0, 1), 1.9), False)
sketch23.addGeometry(Part.Circle(App.Vector(392.5, 23.8, 0), App.Vector(0, 0, 1), 1.9), False)
sketch23.addConstraint(Sketcher.Constraint("Equal", 0, 1))
sketch23.addConstraint(Sketcher.Constraint("Equal", 1, 2))
sketch23.addConstraint(Sketcher.Constraint("Vertical", 0, 3, 1, 3))
sketch23.addConstraint(Sketcher.Constraint("Vertical", 1, 3, 2, 3))
sketch23.addConstraint(Sketcher.Constraint("Diameter", 0, Q("0.15 in")))
sketch23.addConstraint(Sketcher.Constraint("DistanceY", -1, 1, 0, 3, Q("10.75 in")))
sketch23.addConstraint(Sketcher.Constraint("DistanceY", -1, 1, 1, 3, Q("5.84375 in")))
sketch23.addConstraint(Sketcher.Constraint("DistanceY", -1, 1, 2, 3, Q("0.9375 in")))
sketch23.addConstraint(Sketcher.Constraint("DistanceX", -1, 1, 0, 3, Q("392.477728 mm")))
pocket9 = body5.newObject("PartDesign::Pocket", "Pocket008")
pocket9.Profile = sketch23
pocket9.Type = "ThroughAll"

# Sketch on XY plane
sketch24 = body5.newObject("Sketcher::SketchObject", "Sketch023")
sketch24.AttachmentSupport = (doc.getObject("XY_Plane004"), [""])
sketch24.MapMode = "FlatFace"
sketch24.AttachmentOffset = App.Placement(App.Vector(0, 0, 0.1875 * 25.4), App.Rotation())
sketch24.addGeometry(Part.Circle(App.Vector(38.1, 392.5, 0), App.Vector(0, 0, 1), 1.9), False)
sketch24.addGeometry(Part.Circle(App.Vector(66.7, 392.5, 0), App.Vector(0, 0, 1), 1.9), False)
sketch24.addGeometry(Part.Circle(App.Vector(95.2, 392.5, 0), App.Vector(0, 0, 1), 1.9), False)
sketch24.addGeometry(Part.Circle(App.Vector(171.4, 392.5, 0), App.Vector(0, 0, 1), 1.9), False)
sketch24.addGeometry(Part.Circle(App.Vector(228.6, 392.5, 0), App.Vector(0, 0, 1), 1.9), False)
sketch24.addGeometry(Part.Circle(App.Vector(200, 392.5, 0), App.Vector(0, 0, 1), 1.9), False)
sketch24.addConstraint(Sketcher.Constraint("Equal", 0, 1))
sketch24.addConstraint(Sketcher.Constraint("Equal", 1, 2))
sketch24.addConstraint(Sketcher.Constraint("Equal", 2, 3))
sketch24.addConstraint(Sketcher.Constraint("Equal", 3, 4))
sketch24.addConstraint(Sketcher.Constraint("Equal", 4, 5))
sketch24.addConstraint(Sketcher.Constraint("Horizontal", 0, 3, 1, 3))
sketch24.addConstraint(Sketcher.Constraint("Horizontal", 1, 3, 2, 3))
sketch24.addConstraint(Sketcher.Constraint("Horizontal", 2, 3, 3, 3))
sketch24.addConstraint(Sketcher.Constraint("Horizontal", 3, 3, 4, 3))
sketch24.addConstraint(Sketcher.Constraint("Horizontal", 4, 3, 5, 3))
sketch24.addConstraint(Sketcher.Constraint("Diameter", 0, Q("0.15 in")))
sketch24.addConstraint(Sketcher.Constraint("DistanceX", -1, 1, 4, 3, Q("9 in")))
sketch24.addConstraint(Sketcher.Constraint("DistanceX", 2, 3, 3, 3, Q("3 in")))
sketch24.addConstraint(Sketcher.Constraint("DistanceX", -1, 1, 0, 3, Q("1.5 in")))
sketch24.addConstraint(Sketcher.Constraint("DistanceX", -1, 1, 2, 3, Q("3.75 in")))
sketch24.addConstraint(Sketcher.Constraint("DistanceX", 1, 3, 5, 3, Q("5.25 in")))
sketch24.addConstraint(Sketcher.Constraint("DistanceX", -1, 1, 1, 3, Q("2.625 in")))
sketch24.addConstraint(Sketcher.Constraint("DistanceY", -1, 1, 0, 3, Q("392.477728 mm")))
pocket10 = body5.newObject("PartDesign::Pocket", "Pocket009")
pocket10.Profile = sketch24
pocket10.Type = "ThroughAll"

doc.recompute()
